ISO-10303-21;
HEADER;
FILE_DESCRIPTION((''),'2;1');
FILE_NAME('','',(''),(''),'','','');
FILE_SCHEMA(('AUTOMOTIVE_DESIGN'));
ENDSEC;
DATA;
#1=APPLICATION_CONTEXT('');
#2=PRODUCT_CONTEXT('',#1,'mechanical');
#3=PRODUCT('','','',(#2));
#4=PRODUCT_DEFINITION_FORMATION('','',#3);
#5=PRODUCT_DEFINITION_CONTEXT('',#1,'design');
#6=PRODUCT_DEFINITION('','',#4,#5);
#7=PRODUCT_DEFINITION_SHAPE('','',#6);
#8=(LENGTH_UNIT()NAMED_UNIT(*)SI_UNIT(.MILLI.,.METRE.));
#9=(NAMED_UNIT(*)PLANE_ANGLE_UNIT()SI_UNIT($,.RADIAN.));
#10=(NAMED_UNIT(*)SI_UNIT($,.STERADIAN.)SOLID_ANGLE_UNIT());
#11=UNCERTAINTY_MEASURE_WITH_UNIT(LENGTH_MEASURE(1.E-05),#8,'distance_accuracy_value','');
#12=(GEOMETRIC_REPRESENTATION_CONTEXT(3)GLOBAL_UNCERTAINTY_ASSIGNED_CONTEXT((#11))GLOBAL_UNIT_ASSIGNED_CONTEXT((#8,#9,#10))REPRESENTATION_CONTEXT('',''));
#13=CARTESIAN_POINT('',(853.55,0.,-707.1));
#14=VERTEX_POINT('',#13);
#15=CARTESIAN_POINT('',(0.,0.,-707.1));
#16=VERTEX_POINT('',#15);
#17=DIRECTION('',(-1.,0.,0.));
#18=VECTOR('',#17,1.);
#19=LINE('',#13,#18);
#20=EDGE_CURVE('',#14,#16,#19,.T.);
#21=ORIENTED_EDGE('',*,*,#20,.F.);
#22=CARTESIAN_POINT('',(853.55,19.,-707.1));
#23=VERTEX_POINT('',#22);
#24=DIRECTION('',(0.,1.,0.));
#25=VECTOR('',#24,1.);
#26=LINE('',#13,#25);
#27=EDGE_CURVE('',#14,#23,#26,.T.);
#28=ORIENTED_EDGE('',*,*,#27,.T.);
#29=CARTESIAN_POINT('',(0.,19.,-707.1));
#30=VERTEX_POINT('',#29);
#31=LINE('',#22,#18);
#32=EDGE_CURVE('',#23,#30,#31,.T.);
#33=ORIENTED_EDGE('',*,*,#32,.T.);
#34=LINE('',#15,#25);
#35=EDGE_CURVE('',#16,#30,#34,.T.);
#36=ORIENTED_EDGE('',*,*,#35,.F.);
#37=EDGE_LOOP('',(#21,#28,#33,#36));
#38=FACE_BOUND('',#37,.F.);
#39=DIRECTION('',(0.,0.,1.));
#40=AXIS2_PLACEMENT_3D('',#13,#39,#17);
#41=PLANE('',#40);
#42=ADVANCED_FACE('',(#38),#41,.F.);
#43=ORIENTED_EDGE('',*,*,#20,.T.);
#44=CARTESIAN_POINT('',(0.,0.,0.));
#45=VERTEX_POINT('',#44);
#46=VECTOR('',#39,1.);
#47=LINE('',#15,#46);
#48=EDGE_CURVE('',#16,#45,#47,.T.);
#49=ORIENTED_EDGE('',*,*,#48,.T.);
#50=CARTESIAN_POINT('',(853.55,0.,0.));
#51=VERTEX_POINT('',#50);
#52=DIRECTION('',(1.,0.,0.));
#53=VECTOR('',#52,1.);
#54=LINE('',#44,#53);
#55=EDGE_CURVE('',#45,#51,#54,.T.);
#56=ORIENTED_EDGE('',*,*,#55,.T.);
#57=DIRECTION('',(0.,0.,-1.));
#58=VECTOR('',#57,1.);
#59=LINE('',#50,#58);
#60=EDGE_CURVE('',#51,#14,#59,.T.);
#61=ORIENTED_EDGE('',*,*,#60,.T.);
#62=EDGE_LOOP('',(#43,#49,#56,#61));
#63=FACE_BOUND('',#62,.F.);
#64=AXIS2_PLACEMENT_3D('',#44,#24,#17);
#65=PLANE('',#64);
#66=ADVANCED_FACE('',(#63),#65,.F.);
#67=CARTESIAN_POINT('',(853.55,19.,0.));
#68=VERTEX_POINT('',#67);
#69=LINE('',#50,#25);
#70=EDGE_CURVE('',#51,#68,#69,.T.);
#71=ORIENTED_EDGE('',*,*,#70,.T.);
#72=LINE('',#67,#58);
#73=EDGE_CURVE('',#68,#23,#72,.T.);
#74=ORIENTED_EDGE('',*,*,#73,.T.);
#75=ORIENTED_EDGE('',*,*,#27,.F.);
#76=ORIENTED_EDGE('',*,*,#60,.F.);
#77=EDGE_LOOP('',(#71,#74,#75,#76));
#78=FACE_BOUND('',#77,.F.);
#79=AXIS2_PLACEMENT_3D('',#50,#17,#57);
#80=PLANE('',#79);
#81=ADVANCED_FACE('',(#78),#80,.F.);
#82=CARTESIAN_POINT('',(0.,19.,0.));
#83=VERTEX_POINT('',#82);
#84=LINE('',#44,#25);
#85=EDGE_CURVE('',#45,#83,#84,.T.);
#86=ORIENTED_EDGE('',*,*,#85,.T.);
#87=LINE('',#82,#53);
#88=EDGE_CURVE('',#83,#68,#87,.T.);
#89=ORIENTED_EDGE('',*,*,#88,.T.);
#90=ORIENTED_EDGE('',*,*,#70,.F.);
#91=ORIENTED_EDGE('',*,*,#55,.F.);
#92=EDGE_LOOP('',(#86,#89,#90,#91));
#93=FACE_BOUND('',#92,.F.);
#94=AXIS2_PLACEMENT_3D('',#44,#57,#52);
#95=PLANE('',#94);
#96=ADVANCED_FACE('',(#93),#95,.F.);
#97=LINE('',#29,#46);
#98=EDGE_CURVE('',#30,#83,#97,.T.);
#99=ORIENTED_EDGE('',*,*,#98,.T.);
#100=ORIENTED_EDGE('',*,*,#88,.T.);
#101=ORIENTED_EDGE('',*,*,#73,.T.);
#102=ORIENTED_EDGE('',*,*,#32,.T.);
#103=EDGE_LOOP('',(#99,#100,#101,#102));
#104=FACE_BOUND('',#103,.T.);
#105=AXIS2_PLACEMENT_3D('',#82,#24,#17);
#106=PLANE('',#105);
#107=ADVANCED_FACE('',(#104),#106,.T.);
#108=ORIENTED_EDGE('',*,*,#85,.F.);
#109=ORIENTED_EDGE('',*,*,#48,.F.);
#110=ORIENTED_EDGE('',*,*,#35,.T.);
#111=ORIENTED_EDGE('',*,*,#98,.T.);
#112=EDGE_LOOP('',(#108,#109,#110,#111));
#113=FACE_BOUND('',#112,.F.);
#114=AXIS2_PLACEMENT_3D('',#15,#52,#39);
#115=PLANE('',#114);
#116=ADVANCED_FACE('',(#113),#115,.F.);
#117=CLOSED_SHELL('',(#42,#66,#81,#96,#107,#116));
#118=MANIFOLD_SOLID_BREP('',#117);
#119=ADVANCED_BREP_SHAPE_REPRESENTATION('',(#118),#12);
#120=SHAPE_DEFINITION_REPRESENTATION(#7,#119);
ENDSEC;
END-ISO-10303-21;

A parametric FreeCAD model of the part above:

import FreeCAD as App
import Part
import Sketcher
Q = App.Units.Quantity

doc = App.newDocument("Part")
params = doc.addObject("Spreadsheet::Sheet", "Params")
for row, (alias, value) in enumerate([
    ("sketch1_height", "707.1 mm"),
    ("sketch1_width", "853.55 mm"),
    ("pad1_length", "19 mm"),
], start=1):
    params.set(f"A{row}", alias)
    params.set(f"B{row}", "=" + value)
    params.setAlias(f"B{row}", alias)

body = doc.addObject("PartDesign::Body", "Body")

# Sketch on XZ plane
sketch1 = body.newObject("Sketcher::SketchObject", "Sketch")
sketch1.AttachmentSupport = (doc.getObject("XZ_Plane"), [""])
sketch1.MapMode = "FlatFace"
sketch1.addGeometry([
    Part.LineSegment(App.Vector(0, -707, 0), App.Vector(0, 0, 0)),
    Part.LineSegment(App.Vector(0, 0, 0), App.Vector(854, 0, 0)),
    Part.LineSegment(App.Vector(854, 0, 0), App.Vector(854, -707, 0)),
    Part.LineSegment(App.Vector(854, -707, 0), App.Vector(0, -707, 0)),
], False)
sketch1.addConstraint([
    Sketcher.Constraint("Coincident", 0, 2, 1, 1),
    Sketcher.Constraint("Coincident", 1, 2, 2, 1),
    Sketcher.Constraint("Coincident", 2, 2, 3, 1),
    Sketcher.Constraint("Coincident", 3, 2, 0, 1),
    Sketcher.Constraint("Vertical", 0),
    Sketcher.Constraint("Horizontal", 1),
    Sketcher.Constraint("Vertical", 2),
    Sketcher.Constraint("Horizontal", 3),
    Sketcher.Constraint("Coincident", 0, 2, -1, 1),
    Sketcher.Constraint("DistanceY", 0, 1, 0, 2, Q("707.1 mm")),
    Sketcher.Constraint("DistanceX", 1, 1, 1, 2, Q("853.55 mm")),
])
sketch1.setExpression("Constraints[9]", "Params.sketch1_height")
sketch1.setExpression("Constraints[10]", "Params.sketch1_width")
pad1 = body.newObject("PartDesign::Pad", "Pad")
pad1.Profile = sketch1
pad1.setExpression("Length", "Params.pad1_length")
pad1.Reversed = True

doc.recompute()
